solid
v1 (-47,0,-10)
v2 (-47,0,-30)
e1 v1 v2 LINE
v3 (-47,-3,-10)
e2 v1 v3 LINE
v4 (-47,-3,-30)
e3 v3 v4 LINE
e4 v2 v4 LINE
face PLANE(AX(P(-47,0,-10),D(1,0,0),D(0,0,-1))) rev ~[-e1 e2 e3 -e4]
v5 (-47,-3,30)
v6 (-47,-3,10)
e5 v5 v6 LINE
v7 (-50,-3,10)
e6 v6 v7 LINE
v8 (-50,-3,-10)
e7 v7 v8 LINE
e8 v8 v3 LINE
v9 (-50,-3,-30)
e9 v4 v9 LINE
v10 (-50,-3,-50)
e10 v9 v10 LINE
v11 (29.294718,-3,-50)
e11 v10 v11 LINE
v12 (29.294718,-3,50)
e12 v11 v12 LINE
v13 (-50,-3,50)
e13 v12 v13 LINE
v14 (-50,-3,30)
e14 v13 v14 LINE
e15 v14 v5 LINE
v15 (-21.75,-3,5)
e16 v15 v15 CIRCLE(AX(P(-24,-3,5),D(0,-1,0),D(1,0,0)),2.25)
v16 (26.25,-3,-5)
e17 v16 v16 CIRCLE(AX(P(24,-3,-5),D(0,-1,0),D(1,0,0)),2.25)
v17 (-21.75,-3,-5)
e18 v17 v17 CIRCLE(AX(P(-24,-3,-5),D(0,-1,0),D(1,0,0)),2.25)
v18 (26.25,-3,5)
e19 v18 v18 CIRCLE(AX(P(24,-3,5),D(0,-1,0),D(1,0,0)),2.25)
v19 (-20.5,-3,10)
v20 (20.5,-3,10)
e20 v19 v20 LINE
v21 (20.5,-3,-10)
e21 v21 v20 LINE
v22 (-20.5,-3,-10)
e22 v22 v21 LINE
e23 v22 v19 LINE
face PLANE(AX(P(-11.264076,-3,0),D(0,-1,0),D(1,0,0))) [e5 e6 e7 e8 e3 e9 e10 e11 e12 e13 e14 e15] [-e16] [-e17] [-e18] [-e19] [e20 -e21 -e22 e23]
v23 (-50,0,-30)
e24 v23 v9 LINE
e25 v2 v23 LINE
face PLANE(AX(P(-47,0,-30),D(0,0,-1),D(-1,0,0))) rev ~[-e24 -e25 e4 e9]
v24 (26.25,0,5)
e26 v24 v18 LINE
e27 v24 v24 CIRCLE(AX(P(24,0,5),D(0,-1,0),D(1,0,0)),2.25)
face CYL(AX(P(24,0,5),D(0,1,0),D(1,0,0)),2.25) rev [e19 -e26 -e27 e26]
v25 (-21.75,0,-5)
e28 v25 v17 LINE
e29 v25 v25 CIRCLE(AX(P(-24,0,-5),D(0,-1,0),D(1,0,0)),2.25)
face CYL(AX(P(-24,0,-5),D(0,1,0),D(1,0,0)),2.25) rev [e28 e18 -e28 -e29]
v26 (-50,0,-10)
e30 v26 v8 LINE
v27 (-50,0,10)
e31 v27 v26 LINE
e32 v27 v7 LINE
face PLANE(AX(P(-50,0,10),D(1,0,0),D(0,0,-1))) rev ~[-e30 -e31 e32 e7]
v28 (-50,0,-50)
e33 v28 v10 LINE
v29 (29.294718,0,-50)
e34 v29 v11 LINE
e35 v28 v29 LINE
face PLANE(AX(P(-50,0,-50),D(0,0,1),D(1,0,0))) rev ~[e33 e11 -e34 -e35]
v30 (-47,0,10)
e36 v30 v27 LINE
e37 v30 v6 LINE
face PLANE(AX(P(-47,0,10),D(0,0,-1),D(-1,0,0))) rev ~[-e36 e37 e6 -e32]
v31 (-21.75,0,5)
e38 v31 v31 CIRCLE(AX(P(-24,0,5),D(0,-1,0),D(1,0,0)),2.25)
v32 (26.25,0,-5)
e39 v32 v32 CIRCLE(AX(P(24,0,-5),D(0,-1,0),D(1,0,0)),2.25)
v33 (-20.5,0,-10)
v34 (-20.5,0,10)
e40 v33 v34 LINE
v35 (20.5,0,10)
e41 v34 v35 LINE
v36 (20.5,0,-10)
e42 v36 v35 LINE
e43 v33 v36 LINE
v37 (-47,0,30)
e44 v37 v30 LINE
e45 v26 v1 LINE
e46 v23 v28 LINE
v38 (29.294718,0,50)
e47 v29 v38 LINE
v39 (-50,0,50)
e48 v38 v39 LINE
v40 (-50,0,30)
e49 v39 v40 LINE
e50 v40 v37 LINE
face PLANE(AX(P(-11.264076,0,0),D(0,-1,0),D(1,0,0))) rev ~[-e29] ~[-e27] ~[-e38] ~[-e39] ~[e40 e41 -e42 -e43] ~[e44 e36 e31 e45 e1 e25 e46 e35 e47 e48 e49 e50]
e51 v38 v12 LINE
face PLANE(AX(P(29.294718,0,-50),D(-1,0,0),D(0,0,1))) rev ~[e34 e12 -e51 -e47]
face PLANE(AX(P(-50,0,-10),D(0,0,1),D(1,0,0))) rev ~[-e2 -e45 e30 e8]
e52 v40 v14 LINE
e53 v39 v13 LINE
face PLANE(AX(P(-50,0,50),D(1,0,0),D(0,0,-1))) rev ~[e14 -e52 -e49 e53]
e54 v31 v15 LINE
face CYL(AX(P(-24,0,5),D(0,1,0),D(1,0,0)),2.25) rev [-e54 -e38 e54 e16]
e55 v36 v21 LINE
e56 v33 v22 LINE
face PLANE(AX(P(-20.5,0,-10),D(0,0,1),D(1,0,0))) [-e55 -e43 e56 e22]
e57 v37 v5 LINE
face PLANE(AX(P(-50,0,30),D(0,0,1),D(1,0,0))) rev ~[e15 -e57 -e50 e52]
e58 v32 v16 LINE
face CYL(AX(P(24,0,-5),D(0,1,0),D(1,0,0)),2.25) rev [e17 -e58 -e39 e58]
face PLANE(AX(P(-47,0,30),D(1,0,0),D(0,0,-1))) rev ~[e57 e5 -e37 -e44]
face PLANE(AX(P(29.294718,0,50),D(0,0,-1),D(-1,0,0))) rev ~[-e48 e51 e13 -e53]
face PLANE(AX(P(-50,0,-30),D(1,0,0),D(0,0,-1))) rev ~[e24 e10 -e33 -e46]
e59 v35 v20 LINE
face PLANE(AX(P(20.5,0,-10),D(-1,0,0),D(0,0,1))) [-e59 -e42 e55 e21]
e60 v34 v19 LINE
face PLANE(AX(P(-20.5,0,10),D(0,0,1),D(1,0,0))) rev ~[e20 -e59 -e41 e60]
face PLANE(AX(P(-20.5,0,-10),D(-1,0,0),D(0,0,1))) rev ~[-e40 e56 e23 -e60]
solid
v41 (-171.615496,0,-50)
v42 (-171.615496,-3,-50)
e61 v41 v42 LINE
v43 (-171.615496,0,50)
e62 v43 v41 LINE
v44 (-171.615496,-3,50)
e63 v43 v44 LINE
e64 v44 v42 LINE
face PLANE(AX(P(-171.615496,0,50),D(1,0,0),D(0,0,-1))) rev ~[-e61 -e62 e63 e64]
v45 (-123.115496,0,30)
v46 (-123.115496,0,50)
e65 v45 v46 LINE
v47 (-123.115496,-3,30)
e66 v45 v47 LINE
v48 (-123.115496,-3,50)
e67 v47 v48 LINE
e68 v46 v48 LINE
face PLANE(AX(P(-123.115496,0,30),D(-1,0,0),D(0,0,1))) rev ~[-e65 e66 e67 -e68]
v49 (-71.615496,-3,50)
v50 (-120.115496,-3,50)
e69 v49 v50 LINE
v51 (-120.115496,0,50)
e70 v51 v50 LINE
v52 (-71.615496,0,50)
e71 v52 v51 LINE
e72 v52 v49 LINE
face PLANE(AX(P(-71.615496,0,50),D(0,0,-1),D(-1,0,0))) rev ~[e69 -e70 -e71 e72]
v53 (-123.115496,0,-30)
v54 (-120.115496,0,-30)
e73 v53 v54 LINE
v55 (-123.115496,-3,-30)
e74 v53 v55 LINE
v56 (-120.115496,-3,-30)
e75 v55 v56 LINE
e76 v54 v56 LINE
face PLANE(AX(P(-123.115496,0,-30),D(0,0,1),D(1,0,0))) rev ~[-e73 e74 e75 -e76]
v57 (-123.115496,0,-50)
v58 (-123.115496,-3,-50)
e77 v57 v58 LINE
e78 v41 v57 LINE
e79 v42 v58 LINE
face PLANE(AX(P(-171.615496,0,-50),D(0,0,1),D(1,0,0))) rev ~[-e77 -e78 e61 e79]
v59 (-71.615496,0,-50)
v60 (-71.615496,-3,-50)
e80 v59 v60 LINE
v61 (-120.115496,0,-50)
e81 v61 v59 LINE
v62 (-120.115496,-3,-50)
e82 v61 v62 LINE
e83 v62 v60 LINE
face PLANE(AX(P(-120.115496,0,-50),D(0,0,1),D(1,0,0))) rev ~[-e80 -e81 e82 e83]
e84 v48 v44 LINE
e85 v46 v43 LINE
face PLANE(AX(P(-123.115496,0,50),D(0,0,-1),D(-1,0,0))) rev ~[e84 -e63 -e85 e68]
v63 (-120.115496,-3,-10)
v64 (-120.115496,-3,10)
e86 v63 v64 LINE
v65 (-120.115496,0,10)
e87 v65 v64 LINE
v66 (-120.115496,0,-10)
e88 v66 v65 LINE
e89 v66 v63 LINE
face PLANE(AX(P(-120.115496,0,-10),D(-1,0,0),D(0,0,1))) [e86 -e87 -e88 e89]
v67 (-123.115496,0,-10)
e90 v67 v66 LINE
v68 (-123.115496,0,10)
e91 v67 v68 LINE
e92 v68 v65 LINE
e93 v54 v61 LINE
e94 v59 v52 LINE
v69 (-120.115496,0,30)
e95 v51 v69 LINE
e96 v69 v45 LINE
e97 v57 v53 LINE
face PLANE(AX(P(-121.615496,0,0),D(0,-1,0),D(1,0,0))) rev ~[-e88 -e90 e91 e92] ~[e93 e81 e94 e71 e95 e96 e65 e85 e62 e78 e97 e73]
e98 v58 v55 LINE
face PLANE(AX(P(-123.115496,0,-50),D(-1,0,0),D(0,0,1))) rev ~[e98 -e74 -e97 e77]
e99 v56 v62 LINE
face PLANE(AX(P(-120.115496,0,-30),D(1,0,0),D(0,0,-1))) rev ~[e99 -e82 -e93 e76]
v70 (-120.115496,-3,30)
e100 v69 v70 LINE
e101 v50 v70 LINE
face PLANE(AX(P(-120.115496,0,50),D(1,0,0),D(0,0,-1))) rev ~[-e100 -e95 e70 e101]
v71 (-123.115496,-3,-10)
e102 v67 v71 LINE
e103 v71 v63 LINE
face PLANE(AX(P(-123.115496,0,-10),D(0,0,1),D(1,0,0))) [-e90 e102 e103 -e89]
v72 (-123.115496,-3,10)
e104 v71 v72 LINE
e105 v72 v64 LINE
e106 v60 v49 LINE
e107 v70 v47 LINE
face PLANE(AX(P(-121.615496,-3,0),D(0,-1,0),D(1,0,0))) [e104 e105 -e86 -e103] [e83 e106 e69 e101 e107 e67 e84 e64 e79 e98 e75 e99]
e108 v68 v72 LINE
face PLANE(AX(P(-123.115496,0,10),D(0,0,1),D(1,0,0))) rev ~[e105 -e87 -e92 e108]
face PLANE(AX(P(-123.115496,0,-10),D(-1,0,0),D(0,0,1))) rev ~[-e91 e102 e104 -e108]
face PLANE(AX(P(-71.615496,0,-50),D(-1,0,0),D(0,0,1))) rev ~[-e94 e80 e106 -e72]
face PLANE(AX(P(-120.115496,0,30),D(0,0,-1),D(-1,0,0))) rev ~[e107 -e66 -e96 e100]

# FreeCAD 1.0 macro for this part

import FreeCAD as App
import Part
import Sketcher
from FreeCAD import Vector

doc = App.newDocument("Part")
body = doc.addObject("PartDesign::Body", "Body")
body.AllowCompound = True

# Sketch on XZ plane
sketch1 = doc.addObject("Sketcher::SketchObject", "Sketch")
body.addObject(sketch1)
sketch1.AttachmentSupport = (doc.XZ_Plane, [""])
sketch1.MapMode = "FlatFace"
sketch1.addGeometry([
    Part.LineSegment(Vector(29.294718, 50, 0), Vector(-50, 50, 0)),  # 0
    Part.LineSegment(Vector(-50, 50, 0), Vector(-50, 30, 0)),  # 1
    Part.LineSegment(Vector(-50, 30, 0), Vector(-47, 30, 0)),  # 2
    Part.LineSegment(Vector(-47, 30, 0), Vector(-47, 10, 0)),  # 3
    Part.LineSegment(Vector(-47, 10, 0), Vector(-50, 10, 0)),  # 4
    Part.LineSegment(Vector(-50, 10, 0), Vector(-50, -10, 0)),  # 5
    Part.LineSegment(Vector(-50, -10, 0), Vector(-47, -10, 0)),  # 6
    Part.LineSegment(Vector(-47, -10, 0), Vector(-47, -30, 0)),  # 7
    Part.LineSegment(Vector(-47, -30, 0), Vector(-50, -30, 0)),  # 8
    Part.LineSegment(Vector(-50, -30, 0), Vector(-50, -50, 0)),  # 9
    Part.LineSegment(Vector(-50, -50, 0), Vector(29.294718, -50, 0)),  # 10
    Part.LineSegment(Vector(29.294718, -50, 0), Vector(29.294718, 50, 0)),  # 11
    Part.Circle(Vector(-24, -5, 0), Vector(0, 0, 1), 2.25),  # 12
    Part.Circle(Vector(24, -5, 0), Vector(0, 0, 1), 2.25),  # 13
    Part.Circle(Vector(-24, 5, 0), Vector(0, 0, 1), 2.25),  # 14
    Part.LineSegment(Vector(20.5, -10, 0), Vector(-20.5, -10, 0)),  # 15
    Part.LineSegment(Vector(-20.5, -10, 0), Vector(-20.5, 10, 0)),  # 16
    Part.LineSegment(Vector(-20.5, 10, 0), Vector(20.5, 10, 0)),  # 17
    Part.LineSegment(Vector(20.5, 10, 0), Vector(20.5, -10, 0)),  # 18
    Part.Circle(Vector(24, 5, 0), Vector(0, 0, 1), 2.25),  # 19
    Part.LineSegment(Vector(-71.615496, -50, 0), Vector(-71.615496, 50, 0)),  # 20
    Part.LineSegment(Vector(-71.615496, 50, 0), Vector(-120.115496, 50, 0)),  # 21
    Part.LineSegment(Vector(-120.115496, 50, 0), Vector(-120.115496, 30, 0)),  # 22
    Part.LineSegment(Vector(-120.115496, 30, 0), Vector(-123.115496, 30, 0)),  # 23
    Part.LineSegment(Vector(-123.115496, 30, 0), Vector(-123.115496, 50, 0)),  # 24
    Part.LineSegment(Vector(-123.115496, 50, 0), Vector(-171.615496, 50, 0)),  # 25
    Part.LineSegment(Vector(-171.615496, 50, 0), Vector(-171.615496, -50, 0)),  # 26
    Part.LineSegment(Vector(-171.615496, -50, 0), Vector(-123.115496, -50, 0)),  # 27
    Part.LineSegment(Vector(-123.115496, -50, 0), Vector(-123.115496, -30, 0)),  # 28
    Part.LineSegment(Vector(-123.115496, -30, 0), Vector(-120.115496, -30, 0)),  # 29
    Part.LineSegment(Vector(-120.115496, -30, 0), Vector(-120.115496, -50, 0)),  # 30
    Part.LineSegment(Vector(-120.115496, -50, 0), Vector(-71.615496, -50, 0)),  # 31
    Part.LineSegment(Vector(-120.115496, -10, 0), Vector(-123.115496, -10, 0)),  # 32
    Part.LineSegment(Vector(-123.115496, -10, 0), Vector(-123.115496, 10, 0)),  # 33
    Part.LineSegment(Vector(-123.115496, 10, 0), Vector(-120.115496, 10, 0)),  # 34
    Part.LineSegment(Vector(-120.115496, 10, 0), Vector(-120.115496, -10, 0)),  # 35
], False)
sketch1.addConstraint([
    Sketcher.Constraint("Coincident", 0, 2, 1, 1),
    Sketcher.Constraint("Coincident", 1, 2, 2, 1),
    Sketcher.Constraint("Coincident", 2, 2, 3, 1),
    Sketcher.Constraint("Coincident", 3, 2, 4, 1),
    Sketcher.Constraint("Coincident", 4, 2, 5, 1),
    Sketcher.Constraint("Coincident", 5, 2, 6, 1),
    Sketcher.Constraint("Coincident", 6, 2, 7, 1),
    Sketcher.Constraint("Coincident", 7, 2, 8, 1),
    Sketcher.Constraint("Coincident", 8, 2, 9, 1),
    Sketcher.Constraint("Coincident", 9, 2, 10, 1),
    Sketcher.Constraint("Coincident", 10, 2, 11, 1),
    Sketcher.Constraint("Coincident", 11, 2, 0, 1),
    Sketcher.Constraint("Coincident", 15, 2, 16, 1),
    Sketcher.Constraint("Coincident", 16, 2, 17, 1),
    Sketcher.Constraint("Coincident", 17, 2, 18, 1),
    Sketcher.Constraint("Coincident", 18, 2, 15, 1),
    Sketcher.Constraint("Coincident", 20, 2, 21, 1),
    Sketcher.Constraint("Coincident", 21, 2, 22, 1),
    Sketcher.Constraint("Coincident", 22, 2, 23, 1),
    Sketcher.Constraint("Coincident", 23, 2, 24, 1),
    Sketcher.Constraint("Coincident", 24, 2, 25, 1),
    Sketcher.Constraint("Coincident", 25, 2, 26, 1),
    Sketcher.Constraint("Coincident", 26, 2, 27, 1),
    Sketcher.Constraint("Coincident", 27, 2, 28, 1),
    Sketcher.Constraint("Coincident", 28, 2, 29, 1),
    Sketcher.Constraint("Coincident", 29, 2, 30, 1),
    Sketcher.Constraint("Coincident", 30, 2, 31, 1),
    Sketcher.Constraint("Coincident", 31, 2, 20, 1),
    Sketcher.Constraint("Coincident", 32, 2, 33, 1),
    Sketcher.Constraint("Coincident", 33, 2, 34, 1),
    Sketcher.Constraint("Coincident", 34, 2, 35, 1),
    Sketcher.Constraint("Coincident", 35, 2, 32, 1),
    Sketcher.Constraint("Horizontal", 0),
    Sketcher.Constraint("Vertical", 1),
    Sketcher.Constraint("Horizontal", 2),
    Sketcher.Constraint("Vertical", 3),
    Sketcher.Constraint("Horizontal", 4),
    Sketcher.Constraint("Vertical", 5),
    Sketcher.Constraint("Horizontal", 6),
    Sketcher.Constraint("Vertical", 7),
    Sketcher.Constraint("Horizontal", 8),
    Sketcher.Constraint("Vertical", 9),
    Sketcher.Constraint("Horizontal", 10),
    Sketcher.Constraint("Vertical", 11),
    Sketcher.Constraint("Horizontal", 15),
    Sketcher.Constraint("Vertical", 16),
    Sketcher.Constraint("Horizontal", 17),
    Sketcher.Constraint("Vertical", 18),
    Sketcher.Constraint("Vertical", 20),
    Sketcher.Constraint("Horizontal", 21),
    Sketcher.Constraint("Vertical", 22),
    Sketcher.Constraint("Horizontal", 23),
    Sketcher.Constraint("Vertical", 24),
    Sketcher.Constraint("Horizontal", 25),
    Sketcher.Constraint("Vertical", 26),
    Sketcher.Constraint("Horizontal", 27),
    Sketcher.Constraint("Vertical", 28),
    Sketcher.Constraint("Horizontal", 29),
    Sketcher.Constraint("Vertical", 30),
    Sketcher.Constraint("Horizontal", 31),
    Sketcher.Constraint("Horizontal", 32),
    Sketcher.Constraint("Vertical", 33),
    Sketcher.Constraint("Horizontal", 34),
    Sketcher.Constraint("Vertical", 35),
    Sketcher.Constraint("Equal", 12, 13),
    Sketcher.Constraint("Equal", 13, 14),
    Sketcher.Constraint("Equal", 14, 19),
    Sketcher.Constraint("Symmetric", 13, 3, 14, 3, -1, 1),
    Sketcher.Constraint("Symmetric", 12, 3, 19, 3, -1, 1),
    Sketcher.Constraint("Symmetric", 15, 2, 17, 2, -1, 1),
    Sketcher.Constraint("Symmetric", 12, 3, 13, 3, -2),
    Sketcher.Constraint("Symmetric", 3, 2, 6, 2, -1),
    Sketcher.Constraint("Symmetric", 1, 2, 8, 2, -1),
    Sketcher.Constraint("Symmetric", 24, 2, 27, 2, -1),
    Sketcher.Constraint("Symmetric", 22, 2, 29, 2, -1),
    Sketcher.Constraint("Horizontal", 6, 2, 15, 2),
    Sketcher.Constraint("Horizontal", 11, 2, 20, 2),
    Sketcher.Constraint("Horizontal", 2, 2, 22, 2),
    Sketcher.Constraint("Horizontal", 21, 2, 24, 2),
    Sketcher.Constraint("Horizontal", 10, 2, 26, 2),
    Sketcher.Constraint("Horizontal", 27, 2, 30, 2),
    Sketcher.Constraint("Horizontal", 18, 2, 32, 2),
    Sketcher.Constraint("Horizontal", 17, 2, 33, 2),
    Sketcher.Constraint("Vertical", 1, 2, 4, 2),
    Sketcher.Constraint("Vertical", 28, 2, 32, 2),
    Sketcher.Constraint("Vertical", 30, 2, 34, 2),
    Sketcher.Constraint("Equal", 8, 23),
    Sketcher.Constraint("Equal", 21, 25),
    Sketcher.Constraint("Equal", 1, 3),
    Sketcher.Constraint("Equal", 3, 5),
    Sketcher.Constraint("Diameter", 12, 4.5),
    Sketcher.Constraint("DistanceX", 2, 1, 2, 2, 3.0),
    Sketcher.Constraint("DistanceX", 15, 2, 15, 1, 41.0),
    Sketcher.Constraint("DistanceY", 1, 2, 1, 1, 20.0),
    Sketcher.Constraint("DistanceX", 21, 2, 21, 1, 48.5),
    Sketcher.Constraint("DistanceX", 12, 3, -1, 1, 24.0),
    Sketcher.Constraint("DistanceY", 12, 3, -1, 1, 5.0),
    Sketcher.Constraint("DistanceX", 0, 2, -1, 1, 50.0),
    Sketcher.Constraint("DistanceX", 0, 2, 0, 1, 79.294718),
    Sketcher.Constraint("DistanceX", 20, 2, -1, 1, 71.615496),
])
pad1 = doc.addObject("PartDesign::Pad", "Pad")
body.addObject(pad1)
pad1.Profile = sketch1
pad1.Length = 3

doc.recompute()
